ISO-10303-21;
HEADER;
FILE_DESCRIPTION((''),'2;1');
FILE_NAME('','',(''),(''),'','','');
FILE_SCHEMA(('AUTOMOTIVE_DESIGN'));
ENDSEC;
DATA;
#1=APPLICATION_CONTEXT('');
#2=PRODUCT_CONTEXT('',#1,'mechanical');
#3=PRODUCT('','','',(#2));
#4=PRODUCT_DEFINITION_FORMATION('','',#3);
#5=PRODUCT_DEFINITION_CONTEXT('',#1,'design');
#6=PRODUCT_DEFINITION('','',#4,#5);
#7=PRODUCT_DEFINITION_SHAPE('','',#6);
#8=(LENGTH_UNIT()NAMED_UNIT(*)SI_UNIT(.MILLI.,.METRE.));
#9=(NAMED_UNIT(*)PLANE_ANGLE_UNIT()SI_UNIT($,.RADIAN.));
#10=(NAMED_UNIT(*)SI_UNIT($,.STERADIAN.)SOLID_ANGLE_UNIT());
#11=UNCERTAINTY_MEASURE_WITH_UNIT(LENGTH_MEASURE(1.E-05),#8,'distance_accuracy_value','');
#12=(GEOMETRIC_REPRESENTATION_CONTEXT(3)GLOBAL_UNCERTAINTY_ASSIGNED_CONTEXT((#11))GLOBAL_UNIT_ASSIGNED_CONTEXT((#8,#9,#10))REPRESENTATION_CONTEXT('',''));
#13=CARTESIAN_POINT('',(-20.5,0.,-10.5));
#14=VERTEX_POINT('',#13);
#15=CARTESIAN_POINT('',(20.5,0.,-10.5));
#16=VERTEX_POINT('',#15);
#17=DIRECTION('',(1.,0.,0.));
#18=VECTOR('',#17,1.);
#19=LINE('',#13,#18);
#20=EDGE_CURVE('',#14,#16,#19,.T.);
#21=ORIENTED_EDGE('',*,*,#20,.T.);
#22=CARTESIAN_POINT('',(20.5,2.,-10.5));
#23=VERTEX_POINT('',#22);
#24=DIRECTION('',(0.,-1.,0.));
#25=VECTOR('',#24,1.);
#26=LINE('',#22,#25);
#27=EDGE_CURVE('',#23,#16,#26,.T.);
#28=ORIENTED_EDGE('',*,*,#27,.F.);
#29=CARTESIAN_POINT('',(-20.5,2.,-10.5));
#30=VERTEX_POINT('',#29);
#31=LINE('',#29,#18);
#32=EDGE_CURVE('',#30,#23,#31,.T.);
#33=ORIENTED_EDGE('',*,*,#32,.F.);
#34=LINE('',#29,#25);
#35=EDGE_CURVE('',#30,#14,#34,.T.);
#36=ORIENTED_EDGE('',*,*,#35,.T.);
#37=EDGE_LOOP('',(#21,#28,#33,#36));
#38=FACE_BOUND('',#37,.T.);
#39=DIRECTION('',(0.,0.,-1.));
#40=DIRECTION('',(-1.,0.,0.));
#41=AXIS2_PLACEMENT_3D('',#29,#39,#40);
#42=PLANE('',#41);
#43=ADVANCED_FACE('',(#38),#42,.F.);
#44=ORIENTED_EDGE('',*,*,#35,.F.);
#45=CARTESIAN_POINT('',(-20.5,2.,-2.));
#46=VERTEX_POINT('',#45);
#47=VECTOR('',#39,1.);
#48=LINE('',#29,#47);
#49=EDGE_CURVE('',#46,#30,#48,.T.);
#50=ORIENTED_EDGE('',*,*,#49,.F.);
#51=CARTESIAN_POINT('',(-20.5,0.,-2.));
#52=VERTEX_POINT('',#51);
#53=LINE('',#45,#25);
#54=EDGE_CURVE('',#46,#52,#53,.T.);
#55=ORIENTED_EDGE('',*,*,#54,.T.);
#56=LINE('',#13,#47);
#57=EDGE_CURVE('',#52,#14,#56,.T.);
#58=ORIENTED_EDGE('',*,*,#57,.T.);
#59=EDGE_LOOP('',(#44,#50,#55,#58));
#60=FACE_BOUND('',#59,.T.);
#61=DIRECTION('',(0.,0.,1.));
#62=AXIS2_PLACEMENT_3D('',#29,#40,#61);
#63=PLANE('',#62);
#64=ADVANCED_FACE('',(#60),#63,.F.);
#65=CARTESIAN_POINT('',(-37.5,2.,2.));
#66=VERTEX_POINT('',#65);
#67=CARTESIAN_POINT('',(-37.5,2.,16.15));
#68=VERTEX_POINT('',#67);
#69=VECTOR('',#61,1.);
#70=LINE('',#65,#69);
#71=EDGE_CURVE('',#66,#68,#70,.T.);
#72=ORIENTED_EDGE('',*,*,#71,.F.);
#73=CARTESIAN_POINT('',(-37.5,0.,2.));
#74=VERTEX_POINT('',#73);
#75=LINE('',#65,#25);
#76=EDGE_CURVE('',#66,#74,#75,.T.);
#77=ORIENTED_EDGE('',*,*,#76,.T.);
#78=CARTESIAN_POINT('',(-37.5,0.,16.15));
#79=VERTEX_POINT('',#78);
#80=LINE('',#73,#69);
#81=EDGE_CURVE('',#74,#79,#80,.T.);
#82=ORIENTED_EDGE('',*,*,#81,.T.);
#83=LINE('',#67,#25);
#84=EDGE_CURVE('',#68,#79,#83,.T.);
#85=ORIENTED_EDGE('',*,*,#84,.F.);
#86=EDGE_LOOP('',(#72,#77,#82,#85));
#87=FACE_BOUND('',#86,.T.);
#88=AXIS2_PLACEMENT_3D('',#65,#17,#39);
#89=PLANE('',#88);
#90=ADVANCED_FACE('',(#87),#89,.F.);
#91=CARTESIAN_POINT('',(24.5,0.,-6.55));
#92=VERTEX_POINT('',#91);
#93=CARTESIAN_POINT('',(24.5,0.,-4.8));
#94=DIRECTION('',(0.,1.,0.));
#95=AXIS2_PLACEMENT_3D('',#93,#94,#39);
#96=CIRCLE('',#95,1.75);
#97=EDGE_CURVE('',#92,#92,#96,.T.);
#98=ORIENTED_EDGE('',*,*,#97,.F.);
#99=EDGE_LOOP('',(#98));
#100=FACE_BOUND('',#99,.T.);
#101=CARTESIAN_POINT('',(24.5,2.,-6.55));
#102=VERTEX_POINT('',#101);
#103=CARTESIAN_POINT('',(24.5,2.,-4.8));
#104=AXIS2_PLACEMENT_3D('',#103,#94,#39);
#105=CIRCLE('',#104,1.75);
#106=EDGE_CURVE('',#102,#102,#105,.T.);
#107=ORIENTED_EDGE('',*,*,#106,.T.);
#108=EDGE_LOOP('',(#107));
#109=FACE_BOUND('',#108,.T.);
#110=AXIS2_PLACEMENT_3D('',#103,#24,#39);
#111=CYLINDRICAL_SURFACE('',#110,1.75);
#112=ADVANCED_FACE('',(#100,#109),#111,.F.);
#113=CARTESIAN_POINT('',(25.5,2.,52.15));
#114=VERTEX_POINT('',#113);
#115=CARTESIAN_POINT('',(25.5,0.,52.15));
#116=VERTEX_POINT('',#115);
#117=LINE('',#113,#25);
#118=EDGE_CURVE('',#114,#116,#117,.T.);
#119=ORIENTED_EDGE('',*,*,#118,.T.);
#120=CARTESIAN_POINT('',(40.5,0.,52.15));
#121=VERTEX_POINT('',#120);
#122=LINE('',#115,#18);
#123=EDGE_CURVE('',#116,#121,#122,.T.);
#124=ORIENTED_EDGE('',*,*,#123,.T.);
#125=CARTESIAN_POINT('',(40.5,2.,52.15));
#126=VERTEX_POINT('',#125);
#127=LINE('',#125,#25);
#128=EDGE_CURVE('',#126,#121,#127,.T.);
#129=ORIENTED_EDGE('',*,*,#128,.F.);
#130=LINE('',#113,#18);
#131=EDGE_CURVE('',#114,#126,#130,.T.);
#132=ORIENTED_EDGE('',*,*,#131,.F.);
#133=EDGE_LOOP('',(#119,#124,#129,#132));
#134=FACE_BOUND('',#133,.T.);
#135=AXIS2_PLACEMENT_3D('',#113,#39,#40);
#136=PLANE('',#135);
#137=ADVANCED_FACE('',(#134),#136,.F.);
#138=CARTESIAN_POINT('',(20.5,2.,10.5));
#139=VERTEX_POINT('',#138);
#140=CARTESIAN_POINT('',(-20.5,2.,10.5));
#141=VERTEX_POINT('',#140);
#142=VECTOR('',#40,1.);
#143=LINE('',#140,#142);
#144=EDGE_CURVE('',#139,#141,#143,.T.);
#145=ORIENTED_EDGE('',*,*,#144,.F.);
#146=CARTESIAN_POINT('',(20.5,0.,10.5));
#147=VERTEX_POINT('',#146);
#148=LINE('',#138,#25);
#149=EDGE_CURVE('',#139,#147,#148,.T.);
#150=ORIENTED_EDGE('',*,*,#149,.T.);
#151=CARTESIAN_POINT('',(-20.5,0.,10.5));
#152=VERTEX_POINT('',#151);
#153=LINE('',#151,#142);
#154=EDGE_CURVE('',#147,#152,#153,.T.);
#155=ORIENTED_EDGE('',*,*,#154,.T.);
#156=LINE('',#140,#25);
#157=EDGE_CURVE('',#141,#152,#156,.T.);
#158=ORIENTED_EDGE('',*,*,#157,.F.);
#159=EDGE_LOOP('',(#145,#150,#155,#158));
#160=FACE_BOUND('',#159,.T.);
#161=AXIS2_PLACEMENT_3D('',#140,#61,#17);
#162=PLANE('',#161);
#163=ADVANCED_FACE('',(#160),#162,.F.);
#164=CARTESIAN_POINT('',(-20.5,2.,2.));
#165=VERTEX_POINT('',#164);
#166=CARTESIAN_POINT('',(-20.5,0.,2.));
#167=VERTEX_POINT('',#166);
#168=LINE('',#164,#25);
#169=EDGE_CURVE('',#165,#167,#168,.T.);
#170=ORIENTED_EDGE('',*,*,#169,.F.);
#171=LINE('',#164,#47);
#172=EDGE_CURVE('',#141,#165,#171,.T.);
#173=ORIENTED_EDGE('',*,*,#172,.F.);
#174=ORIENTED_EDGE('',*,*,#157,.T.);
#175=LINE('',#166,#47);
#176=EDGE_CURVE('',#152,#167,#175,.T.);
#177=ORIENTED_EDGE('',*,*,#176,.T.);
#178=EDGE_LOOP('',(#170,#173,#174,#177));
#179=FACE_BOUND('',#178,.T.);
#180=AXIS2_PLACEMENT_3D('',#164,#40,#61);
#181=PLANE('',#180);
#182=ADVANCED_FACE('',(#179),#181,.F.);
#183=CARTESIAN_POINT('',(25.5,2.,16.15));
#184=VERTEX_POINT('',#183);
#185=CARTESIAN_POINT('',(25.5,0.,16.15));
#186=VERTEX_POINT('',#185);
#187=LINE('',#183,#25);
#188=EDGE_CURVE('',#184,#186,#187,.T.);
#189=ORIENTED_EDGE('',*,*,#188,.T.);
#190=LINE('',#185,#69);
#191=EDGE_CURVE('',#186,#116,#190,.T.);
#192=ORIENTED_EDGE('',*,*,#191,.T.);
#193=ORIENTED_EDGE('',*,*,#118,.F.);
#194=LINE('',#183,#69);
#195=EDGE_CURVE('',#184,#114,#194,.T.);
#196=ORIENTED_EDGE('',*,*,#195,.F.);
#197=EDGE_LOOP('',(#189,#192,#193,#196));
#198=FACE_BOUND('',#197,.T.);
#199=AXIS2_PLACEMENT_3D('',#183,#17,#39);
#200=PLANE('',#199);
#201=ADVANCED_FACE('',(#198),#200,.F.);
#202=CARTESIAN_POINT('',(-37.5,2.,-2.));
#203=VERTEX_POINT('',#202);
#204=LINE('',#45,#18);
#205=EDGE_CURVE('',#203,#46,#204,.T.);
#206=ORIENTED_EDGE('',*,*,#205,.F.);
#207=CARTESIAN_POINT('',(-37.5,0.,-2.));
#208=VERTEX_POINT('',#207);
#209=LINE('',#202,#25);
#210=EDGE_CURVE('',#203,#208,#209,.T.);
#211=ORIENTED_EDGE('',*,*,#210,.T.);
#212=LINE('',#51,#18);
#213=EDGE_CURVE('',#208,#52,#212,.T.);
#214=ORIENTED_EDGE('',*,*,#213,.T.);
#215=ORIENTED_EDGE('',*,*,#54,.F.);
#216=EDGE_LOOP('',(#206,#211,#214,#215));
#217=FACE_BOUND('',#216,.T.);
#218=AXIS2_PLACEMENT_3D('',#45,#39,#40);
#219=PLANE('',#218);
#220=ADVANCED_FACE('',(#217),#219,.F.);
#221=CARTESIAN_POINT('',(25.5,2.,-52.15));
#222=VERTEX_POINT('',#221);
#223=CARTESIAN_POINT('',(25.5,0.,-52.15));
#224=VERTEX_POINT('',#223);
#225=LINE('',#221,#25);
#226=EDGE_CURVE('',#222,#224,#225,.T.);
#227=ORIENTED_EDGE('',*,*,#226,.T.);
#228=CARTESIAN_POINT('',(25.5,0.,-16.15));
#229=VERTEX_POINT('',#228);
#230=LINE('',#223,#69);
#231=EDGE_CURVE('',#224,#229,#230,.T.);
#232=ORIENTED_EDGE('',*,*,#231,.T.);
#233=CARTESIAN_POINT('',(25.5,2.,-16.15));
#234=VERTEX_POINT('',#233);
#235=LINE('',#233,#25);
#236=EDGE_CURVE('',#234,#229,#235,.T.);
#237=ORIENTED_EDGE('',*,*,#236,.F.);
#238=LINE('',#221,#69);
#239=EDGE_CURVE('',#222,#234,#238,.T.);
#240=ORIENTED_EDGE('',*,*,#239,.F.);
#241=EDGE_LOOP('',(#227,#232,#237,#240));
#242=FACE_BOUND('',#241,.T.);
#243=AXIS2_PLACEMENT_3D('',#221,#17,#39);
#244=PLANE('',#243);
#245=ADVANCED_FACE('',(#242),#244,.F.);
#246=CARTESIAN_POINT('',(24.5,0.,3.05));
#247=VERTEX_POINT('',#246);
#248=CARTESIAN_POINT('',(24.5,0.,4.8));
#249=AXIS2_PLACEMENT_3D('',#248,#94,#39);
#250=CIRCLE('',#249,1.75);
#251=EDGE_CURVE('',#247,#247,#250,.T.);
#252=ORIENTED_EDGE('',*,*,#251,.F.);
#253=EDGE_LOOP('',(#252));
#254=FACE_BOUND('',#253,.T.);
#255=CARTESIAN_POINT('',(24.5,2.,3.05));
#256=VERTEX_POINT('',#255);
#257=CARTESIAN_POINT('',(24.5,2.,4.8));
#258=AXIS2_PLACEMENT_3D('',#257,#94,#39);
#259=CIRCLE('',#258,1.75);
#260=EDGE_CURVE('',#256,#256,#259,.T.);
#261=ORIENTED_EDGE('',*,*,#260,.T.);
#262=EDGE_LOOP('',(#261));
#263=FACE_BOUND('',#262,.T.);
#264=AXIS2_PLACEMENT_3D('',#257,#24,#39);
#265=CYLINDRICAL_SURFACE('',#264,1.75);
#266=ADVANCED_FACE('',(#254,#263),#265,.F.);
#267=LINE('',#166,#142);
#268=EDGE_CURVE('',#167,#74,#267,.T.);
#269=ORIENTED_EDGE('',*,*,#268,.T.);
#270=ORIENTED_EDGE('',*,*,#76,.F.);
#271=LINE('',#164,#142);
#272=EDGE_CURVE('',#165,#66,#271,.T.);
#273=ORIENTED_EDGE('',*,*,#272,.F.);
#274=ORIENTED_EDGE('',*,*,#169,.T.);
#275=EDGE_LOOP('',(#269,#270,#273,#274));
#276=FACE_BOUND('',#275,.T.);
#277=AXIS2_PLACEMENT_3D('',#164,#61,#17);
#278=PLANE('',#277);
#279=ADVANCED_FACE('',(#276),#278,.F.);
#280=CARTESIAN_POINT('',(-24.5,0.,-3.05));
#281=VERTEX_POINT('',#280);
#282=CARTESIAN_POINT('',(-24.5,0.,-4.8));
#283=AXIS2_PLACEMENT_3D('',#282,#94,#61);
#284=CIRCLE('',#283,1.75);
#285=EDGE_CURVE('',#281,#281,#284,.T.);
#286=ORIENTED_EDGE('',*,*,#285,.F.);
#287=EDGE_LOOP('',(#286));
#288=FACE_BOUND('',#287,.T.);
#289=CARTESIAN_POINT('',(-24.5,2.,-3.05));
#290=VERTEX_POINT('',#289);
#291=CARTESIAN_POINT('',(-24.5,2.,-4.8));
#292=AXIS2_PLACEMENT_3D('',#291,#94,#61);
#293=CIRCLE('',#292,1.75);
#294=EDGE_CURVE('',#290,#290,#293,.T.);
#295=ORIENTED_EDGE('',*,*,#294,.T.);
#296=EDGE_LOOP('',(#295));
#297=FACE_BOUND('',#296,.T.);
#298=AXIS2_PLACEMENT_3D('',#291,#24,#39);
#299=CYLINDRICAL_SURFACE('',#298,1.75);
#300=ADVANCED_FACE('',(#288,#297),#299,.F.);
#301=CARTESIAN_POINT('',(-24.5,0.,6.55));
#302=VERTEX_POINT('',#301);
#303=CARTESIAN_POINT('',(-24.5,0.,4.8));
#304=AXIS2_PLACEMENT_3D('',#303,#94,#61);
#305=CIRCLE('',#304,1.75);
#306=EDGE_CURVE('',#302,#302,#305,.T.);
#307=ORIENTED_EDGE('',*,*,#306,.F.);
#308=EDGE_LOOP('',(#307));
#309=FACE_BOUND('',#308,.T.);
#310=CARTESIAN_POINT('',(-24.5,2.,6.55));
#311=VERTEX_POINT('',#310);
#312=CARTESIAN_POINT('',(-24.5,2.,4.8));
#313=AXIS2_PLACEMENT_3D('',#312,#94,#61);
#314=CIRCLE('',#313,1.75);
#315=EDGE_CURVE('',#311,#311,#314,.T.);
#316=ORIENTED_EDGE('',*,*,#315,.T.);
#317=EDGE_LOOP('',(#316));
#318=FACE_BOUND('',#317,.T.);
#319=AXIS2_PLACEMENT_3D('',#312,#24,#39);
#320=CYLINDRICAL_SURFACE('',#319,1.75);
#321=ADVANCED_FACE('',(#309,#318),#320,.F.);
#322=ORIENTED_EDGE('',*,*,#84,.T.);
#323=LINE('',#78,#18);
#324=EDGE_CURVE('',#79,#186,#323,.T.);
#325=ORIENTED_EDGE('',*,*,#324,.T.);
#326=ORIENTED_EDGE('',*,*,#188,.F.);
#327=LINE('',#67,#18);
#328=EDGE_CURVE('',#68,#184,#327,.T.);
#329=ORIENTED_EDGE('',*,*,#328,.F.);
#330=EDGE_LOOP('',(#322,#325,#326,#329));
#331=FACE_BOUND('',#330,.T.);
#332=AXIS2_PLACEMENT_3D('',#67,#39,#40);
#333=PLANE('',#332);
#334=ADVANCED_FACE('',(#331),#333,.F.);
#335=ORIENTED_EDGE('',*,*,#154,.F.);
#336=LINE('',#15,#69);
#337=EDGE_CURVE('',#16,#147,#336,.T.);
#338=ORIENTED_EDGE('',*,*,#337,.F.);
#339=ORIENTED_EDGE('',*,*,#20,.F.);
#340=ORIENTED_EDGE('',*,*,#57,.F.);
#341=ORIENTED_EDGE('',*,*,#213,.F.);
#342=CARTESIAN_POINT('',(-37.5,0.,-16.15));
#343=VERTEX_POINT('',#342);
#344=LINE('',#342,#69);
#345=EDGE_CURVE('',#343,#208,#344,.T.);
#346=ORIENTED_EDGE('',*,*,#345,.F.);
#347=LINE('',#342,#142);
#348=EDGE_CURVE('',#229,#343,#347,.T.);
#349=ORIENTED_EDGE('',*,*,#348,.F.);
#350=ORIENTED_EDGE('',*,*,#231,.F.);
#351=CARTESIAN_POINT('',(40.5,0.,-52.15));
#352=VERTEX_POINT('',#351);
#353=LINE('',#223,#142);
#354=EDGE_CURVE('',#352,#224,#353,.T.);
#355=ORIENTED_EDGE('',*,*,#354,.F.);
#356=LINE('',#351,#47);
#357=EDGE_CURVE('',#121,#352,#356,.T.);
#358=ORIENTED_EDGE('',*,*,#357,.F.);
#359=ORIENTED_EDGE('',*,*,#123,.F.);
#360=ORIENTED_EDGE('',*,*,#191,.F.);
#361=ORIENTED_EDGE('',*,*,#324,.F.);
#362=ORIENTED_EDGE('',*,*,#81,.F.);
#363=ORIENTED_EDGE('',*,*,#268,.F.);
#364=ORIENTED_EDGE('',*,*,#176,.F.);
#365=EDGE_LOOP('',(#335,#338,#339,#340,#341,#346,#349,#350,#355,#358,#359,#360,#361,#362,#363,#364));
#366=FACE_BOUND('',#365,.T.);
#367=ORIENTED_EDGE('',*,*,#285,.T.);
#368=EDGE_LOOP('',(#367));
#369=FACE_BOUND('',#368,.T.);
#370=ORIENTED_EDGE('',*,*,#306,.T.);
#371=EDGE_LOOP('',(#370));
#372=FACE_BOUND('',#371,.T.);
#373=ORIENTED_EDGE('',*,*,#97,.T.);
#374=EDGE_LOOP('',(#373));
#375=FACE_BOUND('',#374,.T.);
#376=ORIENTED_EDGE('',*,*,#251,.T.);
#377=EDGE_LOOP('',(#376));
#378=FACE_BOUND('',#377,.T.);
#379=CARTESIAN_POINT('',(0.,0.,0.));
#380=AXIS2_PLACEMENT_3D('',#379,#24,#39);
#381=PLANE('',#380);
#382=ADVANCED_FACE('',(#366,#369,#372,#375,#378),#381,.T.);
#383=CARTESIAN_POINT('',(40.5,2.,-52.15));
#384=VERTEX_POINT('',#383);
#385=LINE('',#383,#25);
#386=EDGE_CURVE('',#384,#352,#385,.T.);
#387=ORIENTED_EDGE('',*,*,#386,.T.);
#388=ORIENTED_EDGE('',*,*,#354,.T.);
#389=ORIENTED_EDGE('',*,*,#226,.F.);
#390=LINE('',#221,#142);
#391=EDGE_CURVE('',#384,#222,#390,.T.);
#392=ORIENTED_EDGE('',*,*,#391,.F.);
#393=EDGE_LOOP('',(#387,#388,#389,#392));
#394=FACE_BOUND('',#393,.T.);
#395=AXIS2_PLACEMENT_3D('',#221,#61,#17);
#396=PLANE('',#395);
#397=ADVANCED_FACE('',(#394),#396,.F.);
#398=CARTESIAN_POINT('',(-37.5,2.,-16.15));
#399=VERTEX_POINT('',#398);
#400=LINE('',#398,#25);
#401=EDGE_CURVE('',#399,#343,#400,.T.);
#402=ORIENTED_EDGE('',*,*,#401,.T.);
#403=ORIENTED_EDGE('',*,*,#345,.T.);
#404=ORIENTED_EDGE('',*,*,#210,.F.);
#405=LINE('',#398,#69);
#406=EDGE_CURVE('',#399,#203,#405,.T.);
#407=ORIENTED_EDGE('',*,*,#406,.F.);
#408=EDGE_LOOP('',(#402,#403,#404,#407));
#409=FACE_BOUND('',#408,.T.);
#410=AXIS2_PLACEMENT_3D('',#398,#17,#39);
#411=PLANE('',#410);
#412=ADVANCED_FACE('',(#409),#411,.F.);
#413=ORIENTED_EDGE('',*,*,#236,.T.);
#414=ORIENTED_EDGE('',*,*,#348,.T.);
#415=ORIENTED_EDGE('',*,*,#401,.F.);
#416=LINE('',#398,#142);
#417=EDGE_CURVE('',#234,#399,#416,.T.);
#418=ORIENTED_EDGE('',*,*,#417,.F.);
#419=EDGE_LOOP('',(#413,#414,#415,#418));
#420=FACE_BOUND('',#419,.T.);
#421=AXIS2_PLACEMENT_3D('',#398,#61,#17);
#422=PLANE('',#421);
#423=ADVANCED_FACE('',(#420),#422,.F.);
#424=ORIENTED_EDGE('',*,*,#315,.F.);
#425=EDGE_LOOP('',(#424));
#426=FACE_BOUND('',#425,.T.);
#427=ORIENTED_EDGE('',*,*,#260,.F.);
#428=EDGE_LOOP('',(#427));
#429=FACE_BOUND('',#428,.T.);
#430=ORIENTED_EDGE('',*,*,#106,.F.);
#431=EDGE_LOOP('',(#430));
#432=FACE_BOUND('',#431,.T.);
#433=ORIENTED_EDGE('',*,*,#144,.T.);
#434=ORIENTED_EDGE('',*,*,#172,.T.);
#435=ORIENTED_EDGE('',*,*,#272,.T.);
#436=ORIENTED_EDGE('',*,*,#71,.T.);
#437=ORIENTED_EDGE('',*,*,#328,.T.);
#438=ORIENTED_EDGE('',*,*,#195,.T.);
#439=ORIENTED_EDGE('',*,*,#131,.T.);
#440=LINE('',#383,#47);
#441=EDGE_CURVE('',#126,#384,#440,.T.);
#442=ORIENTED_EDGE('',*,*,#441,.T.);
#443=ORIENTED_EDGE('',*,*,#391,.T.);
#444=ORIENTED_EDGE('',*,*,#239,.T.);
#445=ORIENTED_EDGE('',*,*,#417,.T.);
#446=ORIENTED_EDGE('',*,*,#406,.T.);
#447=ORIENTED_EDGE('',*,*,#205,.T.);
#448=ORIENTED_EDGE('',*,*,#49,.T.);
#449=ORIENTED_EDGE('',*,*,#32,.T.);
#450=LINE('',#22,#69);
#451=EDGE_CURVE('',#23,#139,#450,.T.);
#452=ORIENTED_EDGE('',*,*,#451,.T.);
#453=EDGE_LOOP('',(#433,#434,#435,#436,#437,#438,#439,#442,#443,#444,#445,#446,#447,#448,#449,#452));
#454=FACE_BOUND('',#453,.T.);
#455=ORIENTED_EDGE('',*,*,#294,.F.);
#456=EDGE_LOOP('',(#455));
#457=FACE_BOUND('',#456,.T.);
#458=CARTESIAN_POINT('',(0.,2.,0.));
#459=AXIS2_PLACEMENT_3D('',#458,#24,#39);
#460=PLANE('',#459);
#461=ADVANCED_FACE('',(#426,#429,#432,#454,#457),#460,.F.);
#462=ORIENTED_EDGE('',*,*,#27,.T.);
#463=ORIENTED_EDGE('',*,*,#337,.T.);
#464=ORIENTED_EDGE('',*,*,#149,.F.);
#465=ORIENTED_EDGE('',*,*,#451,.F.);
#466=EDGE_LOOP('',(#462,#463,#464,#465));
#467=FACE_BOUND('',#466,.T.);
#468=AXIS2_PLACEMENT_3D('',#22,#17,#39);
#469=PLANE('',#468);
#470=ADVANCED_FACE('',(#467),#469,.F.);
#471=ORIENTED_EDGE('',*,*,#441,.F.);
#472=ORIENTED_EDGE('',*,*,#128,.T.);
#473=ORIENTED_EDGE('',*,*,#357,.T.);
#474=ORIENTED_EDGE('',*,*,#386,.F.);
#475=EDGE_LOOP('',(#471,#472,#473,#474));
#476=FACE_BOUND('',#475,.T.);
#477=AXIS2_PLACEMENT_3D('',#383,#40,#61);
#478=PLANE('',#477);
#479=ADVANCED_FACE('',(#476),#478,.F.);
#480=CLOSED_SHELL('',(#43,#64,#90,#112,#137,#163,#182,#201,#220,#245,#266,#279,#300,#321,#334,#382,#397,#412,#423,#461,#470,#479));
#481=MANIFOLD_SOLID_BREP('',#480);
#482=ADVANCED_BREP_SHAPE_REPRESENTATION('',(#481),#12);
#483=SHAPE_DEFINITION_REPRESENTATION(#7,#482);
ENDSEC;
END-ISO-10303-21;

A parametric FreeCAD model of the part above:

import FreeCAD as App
import Part
import Sketcher
from FreeCAD import Vector

doc = App.newDocument("Part")
body = doc.addObject("PartDesign::Body", "Body")

# Sketch on XZ plane
sketch1 = body.newObject("Sketcher::SketchObject", "Sketch")
sketch1.AttachmentSupport = (doc.getObject("XZ_Plane"), [""])
sketch1.MapMode = "FlatFace"
sketch1.addGeometry([
    Part.LineSegment(Vector(25.5, -16.1, 0), Vector(-37.5, -16.1, 0)),  # 0
    Part.LineSegment(Vector(-37.5, -16.1, 0), Vector(-37.5, -2, 0)),  # 1
    Part.LineSegment(Vector(-37.5, -2, 0), Vector(-20.5, -2, 0)),  # 2
    Part.LineSegment(Vector(-20.5, -2, 0), Vector(-20.5, -10.5, 0)),  # 3
    Part.LineSegment(Vector(-20.5, -10.5, 0), Vector(20.5, -10.5, 0)),  # 4
    Part.LineSegment(Vector(20.5, -10.5, 0), Vector(20.5, 10.5, 0)),  # 5
    Part.LineSegment(Vector(20.5, 10.5, 0), Vector(-20.5, 10.5, 0)),  # 6
    Part.LineSegment(Vector(-20.5, 10.5, 0), Vector(-20.5, 2, 0)),  # 7
    Part.LineSegment(Vector(-20.5, 2, 0), Vector(-37.5, 2, 0)),  # 8
    Part.LineSegment(Vector(-37.5, 2, 0), Vector(-37.5, 16.1, 0)),  # 9
    Part.LineSegment(Vector(-37.5, 16.1, 0), Vector(25.5, 16.1, 0)),  # 10
    Part.LineSegment(Vector(25.5, 16.1, 0), Vector(25.5, 52.1, 0)),  # 11
    Part.LineSegment(Vector(25.5, 52.1, 0), Vector(40.5, 52.1, 0)),  # 12
    Part.LineSegment(Vector(40.5, 52.1, 0), Vector(40.5, -52.1, 0)),  # 13
    Part.LineSegment(Vector(40.5, -52.1, 0), Vector(25.5, -52.1, 0)),  # 14
    Part.LineSegment(Vector(25.5, -52.1, 0), Vector(25.5, -16.1, 0)),  # 15
    Part.Circle(Vector(24.5, 4.8, 0), Vector(0, 0, 1), 1.8),  # 16
    Part.Circle(Vector(-24.5, 4.8, 0), Vector(0, 0, 1), 1.8),  # 17
    Part.Circle(Vector(24.5, -4.8, 0), Vector(0, 0, 1), 1.8),  # 18
    Part.Circle(Vector(-24.5, -4.8, 0), Vector(0, 0, 1), 1.8),  # 19
], False)
sketch1.addConstraint([
    Sketcher.Constraint("Coincident", 0, 2, 1, 1),
    Sketcher.Constraint("Coincident", 1, 2, 2, 1),
    Sketcher.Constraint("Coincident", 2, 2, 3, 1),
    Sketcher.Constraint("Coincident", 3, 2, 4, 1),
    Sketcher.Constraint("Coincident", 4, 2, 5, 1),
    Sketcher.Constraint("Coincident", 5, 2, 6, 1),
    Sketcher.Constraint("Coincident", 6, 2, 7, 1),
    Sketcher.Constraint("Coincident", 7, 2, 8, 1),
    Sketcher.Constraint("Coincident", 8, 2, 9, 1),
    Sketcher.Constraint("Coincident", 9, 2, 10, 1),
    Sketcher.Constraint("Coincident", 10, 2, 11, 1),
    Sketcher.Constraint("Coincident", 11, 2, 12, 1),
    Sketcher.Constraint("Coincident", 12, 2, 13, 1),
    Sketcher.Constraint("Coincident", 13, 2, 14, 1),
    Sketcher.Constraint("Coincident", 14, 2, 15, 1),
    Sketcher.Constraint("Coincident", 15, 2, 0, 1),
    Sketcher.Constraint("Horizontal", 0),
    Sketcher.Constraint("Vertical", 1),
    Sketcher.Constraint("Horizontal", 2),
    Sketcher.Constraint("Vertical", 3),
    Sketcher.Constraint("Horizontal", 4),
    Sketcher.Constraint("Vertical", 5),
    Sketcher.Constraint("Horizontal", 6),
    Sketcher.Constraint("Vertical", 7),
    Sketcher.Constraint("Horizontal", 8),
    Sketcher.Constraint("Vertical", 9),
    Sketcher.Constraint("Horizontal", 10),
    Sketcher.Constraint("Vertical", 11),
    Sketcher.Constraint("Horizontal", 12),
    Sketcher.Constraint("Vertical", 13),
    Sketcher.Constraint("Horizontal", 14),
    Sketcher.Constraint("Vertical", 15),
    Sketcher.Constraint("Equal", 16, 17),
    Sketcher.Constraint("Equal", 17, 18),
    Sketcher.Constraint("Equal", 18, 19),
    Sketcher.Constraint("Symmetric", 17, 3, 18, 3, -1, 1),
    Sketcher.Constraint("Symmetric", 16, 3, 19, 3, -1, 1),
    Sketcher.Constraint("Symmetric", 3, 2, 5, 2, -1, 1),
    Sketcher.Constraint("Symmetric", 16, 3, 17, 3, -2),
    Sketcher.Constraint("Symmetric", 2, 2, 7, 2, -1),
    Sketcher.Constraint("Symmetric", 0, 2, 9, 2, -1),
    Sketcher.Constraint("Symmetric", 11, 2, 14, 2, -1),
    Sketcher.Constraint("Diameter", 16, 3.5),
    Sketcher.Constraint("DistanceX", 0, 2, 0, 1, 63.0),
    Sketcher.Constraint("DistanceX", 2, 1, 2, 2, 17.0),
    Sketcher.Constraint("DistanceX", 4, 1, 4, 2, 41.0),
    Sketcher.Constraint("DistanceX", 12, 1, 12, 2, 15.0),
    Sketcher.Constraint("DistanceY", 5, 1, 5, 2, 21.0),
    Sketcher.Constraint("DistanceY", 11, 1, 11, 2, 36.0),
    Sketcher.Constraint("DistanceY", 3, 2, 3, 1, 8.5),
    Sketcher.Constraint("DistanceY", 13, 2, 13, 1, 104.3),
    Sketcher.Constraint("DistanceX", 17, 3, 16, 3, 49.0),
    Sketcher.Constraint("DistanceY", -1, 1, 16, 3, 4.8),
])
pad1 = body.newObject("PartDesign::Pad", "Pad")
pad1.Profile = sketch1
pad1.Length = 2
pad1.Reversed = True

doc.recompute()
